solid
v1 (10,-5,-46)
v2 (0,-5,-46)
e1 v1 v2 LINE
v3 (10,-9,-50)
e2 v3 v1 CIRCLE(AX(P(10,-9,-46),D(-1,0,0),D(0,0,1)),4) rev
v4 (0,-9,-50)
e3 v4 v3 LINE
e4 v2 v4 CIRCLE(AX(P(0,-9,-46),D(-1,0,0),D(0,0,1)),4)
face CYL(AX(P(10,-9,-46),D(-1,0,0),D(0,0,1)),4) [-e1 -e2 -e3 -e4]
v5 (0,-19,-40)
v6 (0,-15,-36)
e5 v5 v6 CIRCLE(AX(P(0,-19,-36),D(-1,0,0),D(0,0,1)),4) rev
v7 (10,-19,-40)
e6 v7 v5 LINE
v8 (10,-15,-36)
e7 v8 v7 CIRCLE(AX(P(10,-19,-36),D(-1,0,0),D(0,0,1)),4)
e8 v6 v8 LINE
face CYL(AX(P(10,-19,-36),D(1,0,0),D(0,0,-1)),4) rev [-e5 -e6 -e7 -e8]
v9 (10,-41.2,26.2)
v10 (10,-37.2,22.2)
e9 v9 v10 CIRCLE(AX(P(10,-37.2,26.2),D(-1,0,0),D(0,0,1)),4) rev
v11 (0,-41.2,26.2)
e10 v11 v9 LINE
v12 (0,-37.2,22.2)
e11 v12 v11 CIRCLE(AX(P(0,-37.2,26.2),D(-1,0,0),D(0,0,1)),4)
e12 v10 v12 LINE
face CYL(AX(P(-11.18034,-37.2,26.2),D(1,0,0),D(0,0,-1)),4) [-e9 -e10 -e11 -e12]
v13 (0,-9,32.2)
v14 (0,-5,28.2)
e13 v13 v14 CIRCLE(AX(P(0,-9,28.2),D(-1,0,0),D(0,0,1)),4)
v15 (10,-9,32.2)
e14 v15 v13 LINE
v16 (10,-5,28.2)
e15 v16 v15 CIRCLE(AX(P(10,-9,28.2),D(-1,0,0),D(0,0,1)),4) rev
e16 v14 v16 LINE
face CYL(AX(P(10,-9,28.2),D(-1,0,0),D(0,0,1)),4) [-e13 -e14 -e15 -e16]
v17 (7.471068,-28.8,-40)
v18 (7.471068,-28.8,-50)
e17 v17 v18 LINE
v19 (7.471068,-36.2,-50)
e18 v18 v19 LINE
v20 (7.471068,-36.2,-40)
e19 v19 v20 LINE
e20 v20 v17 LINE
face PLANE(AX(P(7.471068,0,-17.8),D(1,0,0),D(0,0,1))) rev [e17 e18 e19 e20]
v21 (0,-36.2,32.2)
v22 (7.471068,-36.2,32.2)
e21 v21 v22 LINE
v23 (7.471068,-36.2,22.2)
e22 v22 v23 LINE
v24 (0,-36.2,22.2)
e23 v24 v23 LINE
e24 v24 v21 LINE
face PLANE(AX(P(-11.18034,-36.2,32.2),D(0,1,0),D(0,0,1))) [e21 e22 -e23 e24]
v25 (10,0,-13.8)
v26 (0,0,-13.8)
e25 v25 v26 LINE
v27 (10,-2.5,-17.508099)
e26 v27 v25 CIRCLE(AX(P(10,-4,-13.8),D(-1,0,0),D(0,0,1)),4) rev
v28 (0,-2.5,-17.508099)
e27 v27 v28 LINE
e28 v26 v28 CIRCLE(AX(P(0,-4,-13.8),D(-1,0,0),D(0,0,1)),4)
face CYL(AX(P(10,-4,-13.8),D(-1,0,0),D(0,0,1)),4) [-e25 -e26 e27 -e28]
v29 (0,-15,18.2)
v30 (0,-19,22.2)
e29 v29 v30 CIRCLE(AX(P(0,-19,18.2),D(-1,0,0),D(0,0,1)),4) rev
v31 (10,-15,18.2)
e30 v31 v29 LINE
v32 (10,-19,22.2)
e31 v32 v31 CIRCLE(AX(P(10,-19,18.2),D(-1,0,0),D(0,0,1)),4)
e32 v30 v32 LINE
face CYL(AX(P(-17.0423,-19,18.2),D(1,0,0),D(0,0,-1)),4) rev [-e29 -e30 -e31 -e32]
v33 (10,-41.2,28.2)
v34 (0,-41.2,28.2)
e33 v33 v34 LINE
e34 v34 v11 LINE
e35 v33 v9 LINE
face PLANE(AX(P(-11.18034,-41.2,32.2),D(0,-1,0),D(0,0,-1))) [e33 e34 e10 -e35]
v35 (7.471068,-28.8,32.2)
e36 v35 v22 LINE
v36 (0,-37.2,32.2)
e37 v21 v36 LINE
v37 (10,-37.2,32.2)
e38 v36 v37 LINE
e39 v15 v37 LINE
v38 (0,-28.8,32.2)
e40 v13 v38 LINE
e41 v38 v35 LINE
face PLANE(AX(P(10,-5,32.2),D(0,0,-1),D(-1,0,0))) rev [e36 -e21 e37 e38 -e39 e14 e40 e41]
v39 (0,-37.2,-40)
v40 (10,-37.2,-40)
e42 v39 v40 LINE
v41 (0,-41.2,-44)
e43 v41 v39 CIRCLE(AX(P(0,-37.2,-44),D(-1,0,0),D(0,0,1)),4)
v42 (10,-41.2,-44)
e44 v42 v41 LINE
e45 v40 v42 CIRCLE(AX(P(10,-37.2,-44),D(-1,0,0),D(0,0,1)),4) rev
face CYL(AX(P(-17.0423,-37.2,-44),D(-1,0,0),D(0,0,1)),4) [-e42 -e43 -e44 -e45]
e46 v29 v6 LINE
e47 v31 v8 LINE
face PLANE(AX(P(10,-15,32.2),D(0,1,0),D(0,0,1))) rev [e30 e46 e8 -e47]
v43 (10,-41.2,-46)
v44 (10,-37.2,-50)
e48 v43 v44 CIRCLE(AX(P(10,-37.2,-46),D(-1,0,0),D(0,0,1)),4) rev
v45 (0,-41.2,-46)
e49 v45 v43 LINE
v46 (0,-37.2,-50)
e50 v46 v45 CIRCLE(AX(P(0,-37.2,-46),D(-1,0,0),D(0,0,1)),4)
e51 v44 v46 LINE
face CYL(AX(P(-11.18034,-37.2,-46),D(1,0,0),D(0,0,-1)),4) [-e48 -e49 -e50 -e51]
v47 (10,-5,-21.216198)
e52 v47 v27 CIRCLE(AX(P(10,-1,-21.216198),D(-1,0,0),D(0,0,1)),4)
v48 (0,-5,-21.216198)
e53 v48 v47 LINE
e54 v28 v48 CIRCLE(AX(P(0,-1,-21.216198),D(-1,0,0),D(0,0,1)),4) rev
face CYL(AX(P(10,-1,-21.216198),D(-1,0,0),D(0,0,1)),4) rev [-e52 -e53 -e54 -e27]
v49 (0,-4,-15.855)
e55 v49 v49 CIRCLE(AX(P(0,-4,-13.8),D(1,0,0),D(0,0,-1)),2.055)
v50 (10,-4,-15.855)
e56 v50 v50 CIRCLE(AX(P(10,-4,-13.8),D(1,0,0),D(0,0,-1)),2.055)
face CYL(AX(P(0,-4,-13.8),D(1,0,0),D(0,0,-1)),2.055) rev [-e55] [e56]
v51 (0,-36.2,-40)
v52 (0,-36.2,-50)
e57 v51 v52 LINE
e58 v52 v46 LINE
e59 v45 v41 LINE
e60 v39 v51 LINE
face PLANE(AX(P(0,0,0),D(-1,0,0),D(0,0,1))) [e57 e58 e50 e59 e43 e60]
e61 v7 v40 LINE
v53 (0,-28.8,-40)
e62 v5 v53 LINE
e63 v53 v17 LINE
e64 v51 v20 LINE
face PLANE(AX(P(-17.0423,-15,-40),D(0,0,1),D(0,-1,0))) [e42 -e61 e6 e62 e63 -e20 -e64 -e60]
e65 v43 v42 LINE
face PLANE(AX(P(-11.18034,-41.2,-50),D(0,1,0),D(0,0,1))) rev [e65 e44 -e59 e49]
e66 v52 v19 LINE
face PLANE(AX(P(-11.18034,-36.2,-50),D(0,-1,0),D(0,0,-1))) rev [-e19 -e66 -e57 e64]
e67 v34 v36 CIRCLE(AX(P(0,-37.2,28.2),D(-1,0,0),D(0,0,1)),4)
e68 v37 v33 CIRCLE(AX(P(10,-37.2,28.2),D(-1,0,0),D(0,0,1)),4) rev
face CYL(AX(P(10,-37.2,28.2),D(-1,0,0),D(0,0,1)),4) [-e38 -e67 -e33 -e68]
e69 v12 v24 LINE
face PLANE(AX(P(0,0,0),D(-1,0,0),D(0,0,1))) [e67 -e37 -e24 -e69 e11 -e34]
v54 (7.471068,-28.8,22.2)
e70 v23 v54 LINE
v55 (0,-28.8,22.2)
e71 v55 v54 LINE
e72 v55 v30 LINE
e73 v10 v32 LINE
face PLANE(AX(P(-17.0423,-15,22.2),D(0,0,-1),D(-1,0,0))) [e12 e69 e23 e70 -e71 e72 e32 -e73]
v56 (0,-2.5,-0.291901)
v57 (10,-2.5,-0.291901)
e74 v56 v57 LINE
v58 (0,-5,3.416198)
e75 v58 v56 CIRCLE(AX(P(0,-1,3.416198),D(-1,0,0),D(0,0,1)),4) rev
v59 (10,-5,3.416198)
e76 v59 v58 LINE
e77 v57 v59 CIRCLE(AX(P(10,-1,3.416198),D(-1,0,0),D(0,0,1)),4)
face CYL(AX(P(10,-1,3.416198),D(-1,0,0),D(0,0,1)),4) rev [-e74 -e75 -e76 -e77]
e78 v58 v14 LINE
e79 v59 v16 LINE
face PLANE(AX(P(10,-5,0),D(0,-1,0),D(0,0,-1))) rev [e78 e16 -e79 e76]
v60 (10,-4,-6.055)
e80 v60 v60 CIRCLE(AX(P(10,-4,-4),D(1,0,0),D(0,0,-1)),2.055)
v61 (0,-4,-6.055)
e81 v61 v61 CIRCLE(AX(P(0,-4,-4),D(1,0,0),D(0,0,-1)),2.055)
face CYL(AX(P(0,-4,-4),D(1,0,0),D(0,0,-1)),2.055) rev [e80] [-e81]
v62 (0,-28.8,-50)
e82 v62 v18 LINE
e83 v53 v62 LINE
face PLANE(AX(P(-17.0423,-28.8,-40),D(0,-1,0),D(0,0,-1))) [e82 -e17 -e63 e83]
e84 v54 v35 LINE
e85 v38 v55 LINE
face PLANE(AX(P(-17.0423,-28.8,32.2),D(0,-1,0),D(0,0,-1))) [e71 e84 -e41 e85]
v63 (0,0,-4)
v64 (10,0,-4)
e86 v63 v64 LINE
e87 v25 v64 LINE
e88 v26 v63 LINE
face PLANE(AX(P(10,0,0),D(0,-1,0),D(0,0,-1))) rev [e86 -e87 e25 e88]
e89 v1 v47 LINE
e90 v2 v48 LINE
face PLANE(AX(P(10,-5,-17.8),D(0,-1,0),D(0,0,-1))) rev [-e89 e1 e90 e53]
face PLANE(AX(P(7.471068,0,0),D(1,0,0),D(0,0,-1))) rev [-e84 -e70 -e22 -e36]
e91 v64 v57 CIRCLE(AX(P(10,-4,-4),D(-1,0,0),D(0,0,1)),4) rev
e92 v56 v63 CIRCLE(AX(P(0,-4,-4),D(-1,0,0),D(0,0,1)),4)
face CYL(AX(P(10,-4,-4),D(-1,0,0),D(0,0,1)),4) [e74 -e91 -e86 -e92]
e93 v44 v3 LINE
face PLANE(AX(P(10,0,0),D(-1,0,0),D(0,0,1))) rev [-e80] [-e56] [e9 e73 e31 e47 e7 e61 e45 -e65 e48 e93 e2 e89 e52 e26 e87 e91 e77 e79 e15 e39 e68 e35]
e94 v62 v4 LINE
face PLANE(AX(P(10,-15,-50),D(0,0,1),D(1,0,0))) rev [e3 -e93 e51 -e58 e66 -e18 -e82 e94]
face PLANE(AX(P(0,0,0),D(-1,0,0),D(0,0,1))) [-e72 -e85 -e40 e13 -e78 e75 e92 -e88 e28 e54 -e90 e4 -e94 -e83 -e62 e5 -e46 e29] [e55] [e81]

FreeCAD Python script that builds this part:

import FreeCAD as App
import Part
import Sketcher


def edges_at(feature, points):
    """Names of the edges that pass closest to the given points."""
    edges = feature.Shape.Edges
    near = lambda p: min(range(len(edges)), key=lambda i: edges[i].distToShape(Part.Vertex(*p))[0])
    return sorted({f"Edge{near(p) + 1}" for p in points})


def add_polygon(sketch, points):
    """Adds a closed chain of lines whose ends are joined by coincident constraints."""
    first, n = sketch.GeometryCount, len(points)
    for a, b in zip(points, points[1:] + points[:1]):
        sketch.addGeometry(Part.LineSegment(App.Vector(*a, 0), App.Vector(*b, 0)), False)
    for i in range(n):
        sketch.addConstraint(Sketcher.Constraint("Coincident", first + i, 2, first + (i + 1) % n, 1))

doc = App.newDocument("Part")
body = doc.addObject("PartDesign::Body", "Body")

sketch1 = body.newObject("Sketcher::SketchObject", "Sketch")
sketch1.AttachmentSupport = (doc.getObject("YZ_Plane"), [""])
sketch1.MapMode = "FlatFace"
add_polygon(sketch1, [(-5, -50), (-5, -18), (0, -18), (0, 0), (-5, 0), (-5, 32), (-15, 32), (-15, -50)])
sketch1.addConstraint([
    Sketcher.Constraint("Vertical", 0),
    Sketcher.Constraint("Horizontal", 1),
    Sketcher.Constraint("Vertical", 2),
    Sketcher.Constraint("Horizontal", 3),
    Sketcher.Constraint("Vertical", 4),
    Sketcher.Constraint("Horizontal", 5),
    Sketcher.Constraint("Vertical", 6),
    Sketcher.Constraint("Horizontal", 7),
    Sketcher.Constraint("Coincident", 2, 2, -1, 1),
    Sketcher.Constraint("Vertical", 0, 2, 3, 2),
    Sketcher.Constraint("Equal", 0, 4),
    Sketcher.Constraint("DistanceX", 1, 1, 1, 2, 5.0),
    Sketcher.Constraint("DistanceX", 5, 2, 5, 1, 10.0),
    Sketcher.Constraint("DistanceY", 0, 1, 0, 2, 32.2),
    Sketcher.Constraint("DistanceY", 2, 1, 2, 2, 17.8),
])
pad1 = body.newObject("PartDesign::Pad", "Pad")
pad1.Profile = sketch1
pad1.Length = 10

sketch2 = body.newObject("Sketcher::SketchObject", "Sketch001")
sketch2.AttachmentSupport = (doc.getObject("YZ_Plane"), [""])
sketch2.MapMode = "FlatFace"
sketch2.AttachmentOffset = App.Placement(App.Vector(0, 0, 10), App.Rotation())
sketch2.addGeometry([
    Part.Circle(App.Vector(-4, -4, 0), App.Vector(0, 0, 1), 2.1),
    Part.Circle(App.Vector(-4, -13.8, 0), App.Vector(0, 0, 1), 2.1),
], False)
sketch2.addConstraint([
    Sketcher.Constraint("Equal", 0, 1),
    Sketcher.Constraint("Vertical", 0, 3, 1, 3),
    Sketcher.Constraint("Diameter", 0, 4.11),
    Sketcher.Constraint("DistanceX", 0, 3, -1, 1, 4.0),
    Sketcher.Constraint("DistanceY", 0, 3, -1, 1, 4.0),
    Sketcher.Constraint("DistanceY", 1, 3, -1, 1, 13.8),
])
pocket1 = body.newObject("PartDesign::Pocket", "Pocket")
pocket1.Profile = sketch2
pocket1.Type = "ThroughAll"

sketch3 = body.newObject("Sketcher::SketchObject", "Sketch002")
sketch3.AttachmentSupport = (doc.getObject("YZ_Plane"), [""])
sketch3.MapMode = "FlatFace"
sketch3.AttachmentOffset = App.Placement(App.Vector(0, 0, 10), App.Rotation())
add_polygon(sketch3, [(-15, 32), (-29, 32), (-29, 22), (-15, 22)])
add_polygon(sketch3, [(-15, -40), (-29, -40), (-29, -50), (-15, -50)])
sketch3.addConstraint([
    Sketcher.Constraint("Horizontal", 0),
    Sketcher.Constraint("Vertical", 1),
    Sketcher.Constraint("Horizontal", 2),
    Sketcher.Constraint("Vertical", 3),
    Sketcher.Constraint("Horizontal", 4),
    Sketcher.Constraint("Vertical", 5),
    Sketcher.Constraint("Horizontal", 6),
    Sketcher.Constraint("Vertical", 7),
    Sketcher.Constraint("Vertical", 1, 2, 4, 2),
    Sketcher.Constraint("Vertical", 3, 2, 6, 2),
    Sketcher.Constraint("Equal", 3, 5),
    Sketcher.Constraint("DistanceY", 1, 2, 1, 1, 10.0),
    Sketcher.Constraint("DistanceX", 0, 2, 0, 1, 13.8),
    Sketcher.Constraint("DistanceX", 2, 2, -1, 1, 15.0),
    Sketcher.Constraint("DistanceY", 4, 2, -1, 1, 40.0),
    Sketcher.Constraint("DistanceY", -1, 1, 0, 2, 32.2),
])
pad2 = body.newObject("PartDesign::Pad", "Pad001")
pad2.Profile = sketch3
pad2.Length = 10
pad2.Reversed = True

sketch4 = body.newObject("Sketcher::SketchObject", "Sketch003")
sketch4.AttachmentSupport = (doc.getObject("YZ_Plane"), [""])
sketch4.MapMode = "FlatFace"
sketch4.AttachmentOffset = App.Placement(App.Vector(0, 0, 10), App.Rotation())
add_polygon(sketch4, [(-29, 32), (-36, 32), (-36, 22), (-29, 22)])
sketch4.addConstraint([
    Sketcher.Constraint("Horizontal", 0),
    Sketcher.Constraint("Vertical", 1),
    Sketcher.Constraint("Horizontal", 2),
    Sketcher.Constraint("Vertical", 3),
    Sketcher.Constraint("DistanceY", 1, 2, 1, 1, 10.0),
    Sketcher.Constraint("DistanceX", 0, 2, 0, 1, 7.4),
    Sketcher.Constraint("DistanceX", 0, 2, -1, 1, 36.2),
    Sketcher.Constraint("DistanceY", -1, 1, 0, 2, 32.2),
])
pad3 = body.newObject("PartDesign::Pad", "Pad002")
pad3.Profile = sketch4
pad3.Length = 2.528932
pad3.Reversed = True

sketch5 = body.newObject("Sketcher::SketchObject", "Sketch004")
sketch5.AttachmentSupport = (doc.getObject("YZ_Plane"), [""])
sketch5.MapMode = "FlatFace"
sketch5.AttachmentOffset = App.Placement(App.Vector(0, 0, 10), App.Rotation())
add_polygon(sketch5, [(-36, 32), (-41, 32), (-41, 22), (-36, 22)])
sketch5.addConstraint([
    Sketcher.Constraint("Horizontal", 0),
    Sketcher.Constraint("Vertical", 1),
    Sketcher.Constraint("Horizontal", 2),
    Sketcher.Constraint("Vertical", 3),
    Sketcher.Constraint("DistanceX", 0, 2, 0, 1, 5.0),
    Sketcher.Constraint("DistanceY", 1, 2, 1, 1, 10.0),
    Sketcher.Constraint("DistanceX", 0, 2, -1, 1, 41.2),
    Sketcher.Constraint("DistanceY", -1, 1, 0, 2, 32.2),
])
pad4 = body.newObject("PartDesign::Pad", "Pad003")
pad4.Profile = sketch5
pad4.Length = 10
pad4.Reversed = True
doc.recompute()

datumplane = body.newObject("PartDesign::Plane", "DatumPlane")
datumplane.AttachmentSupport = (doc.getObject("XY_Plane"), [""])
datumplane.MapMode = "FlatFace"
datumplane.AttachmentOffset = App.Placement(App.Vector(0, 0, -8.9), App.Rotation())
mirrored = body.newObject("PartDesign::Mirrored", "Mirrored")
mirrored.Originals = [pad3, pad4]
mirrored.MirrorPlane = (datumplane, [""])
body.Tip = mirrored
doc.recompute()

fillet = body.newObject("PartDesign::Fillet", "Fillet")
fillet.Base = (mirrored, edges_at(mirrored, [(5, 0, 0), (5, 0, -17.8)]))
fillet.Radius = 4
doc.recompute()

fillet2 = body.newObject("PartDesign::Fillet", "Fillet001")
fillet2.Base = (fillet, edges_at(fillet, [
    (5, -41.2, -50),
    (5, -41.2, -40),
    (5, -5, -50),
    (5, -5, 32.2),
    (5, -15, 22.2),
    (5, -15, -40),
    (5, -41.2, 22.2),
    (5, -41.2, 32.2),
]))
fillet2.Radius = 4
doc.recompute()

fillet3 = body.newObject("PartDesign::Fillet", "Fillet002")
fillet3.Base = (fillet2, edges_at(fillet2, [(5, -5, -17.8), (5, -5, 0)]))
fillet3.Radius = 4

doc.recompute()
